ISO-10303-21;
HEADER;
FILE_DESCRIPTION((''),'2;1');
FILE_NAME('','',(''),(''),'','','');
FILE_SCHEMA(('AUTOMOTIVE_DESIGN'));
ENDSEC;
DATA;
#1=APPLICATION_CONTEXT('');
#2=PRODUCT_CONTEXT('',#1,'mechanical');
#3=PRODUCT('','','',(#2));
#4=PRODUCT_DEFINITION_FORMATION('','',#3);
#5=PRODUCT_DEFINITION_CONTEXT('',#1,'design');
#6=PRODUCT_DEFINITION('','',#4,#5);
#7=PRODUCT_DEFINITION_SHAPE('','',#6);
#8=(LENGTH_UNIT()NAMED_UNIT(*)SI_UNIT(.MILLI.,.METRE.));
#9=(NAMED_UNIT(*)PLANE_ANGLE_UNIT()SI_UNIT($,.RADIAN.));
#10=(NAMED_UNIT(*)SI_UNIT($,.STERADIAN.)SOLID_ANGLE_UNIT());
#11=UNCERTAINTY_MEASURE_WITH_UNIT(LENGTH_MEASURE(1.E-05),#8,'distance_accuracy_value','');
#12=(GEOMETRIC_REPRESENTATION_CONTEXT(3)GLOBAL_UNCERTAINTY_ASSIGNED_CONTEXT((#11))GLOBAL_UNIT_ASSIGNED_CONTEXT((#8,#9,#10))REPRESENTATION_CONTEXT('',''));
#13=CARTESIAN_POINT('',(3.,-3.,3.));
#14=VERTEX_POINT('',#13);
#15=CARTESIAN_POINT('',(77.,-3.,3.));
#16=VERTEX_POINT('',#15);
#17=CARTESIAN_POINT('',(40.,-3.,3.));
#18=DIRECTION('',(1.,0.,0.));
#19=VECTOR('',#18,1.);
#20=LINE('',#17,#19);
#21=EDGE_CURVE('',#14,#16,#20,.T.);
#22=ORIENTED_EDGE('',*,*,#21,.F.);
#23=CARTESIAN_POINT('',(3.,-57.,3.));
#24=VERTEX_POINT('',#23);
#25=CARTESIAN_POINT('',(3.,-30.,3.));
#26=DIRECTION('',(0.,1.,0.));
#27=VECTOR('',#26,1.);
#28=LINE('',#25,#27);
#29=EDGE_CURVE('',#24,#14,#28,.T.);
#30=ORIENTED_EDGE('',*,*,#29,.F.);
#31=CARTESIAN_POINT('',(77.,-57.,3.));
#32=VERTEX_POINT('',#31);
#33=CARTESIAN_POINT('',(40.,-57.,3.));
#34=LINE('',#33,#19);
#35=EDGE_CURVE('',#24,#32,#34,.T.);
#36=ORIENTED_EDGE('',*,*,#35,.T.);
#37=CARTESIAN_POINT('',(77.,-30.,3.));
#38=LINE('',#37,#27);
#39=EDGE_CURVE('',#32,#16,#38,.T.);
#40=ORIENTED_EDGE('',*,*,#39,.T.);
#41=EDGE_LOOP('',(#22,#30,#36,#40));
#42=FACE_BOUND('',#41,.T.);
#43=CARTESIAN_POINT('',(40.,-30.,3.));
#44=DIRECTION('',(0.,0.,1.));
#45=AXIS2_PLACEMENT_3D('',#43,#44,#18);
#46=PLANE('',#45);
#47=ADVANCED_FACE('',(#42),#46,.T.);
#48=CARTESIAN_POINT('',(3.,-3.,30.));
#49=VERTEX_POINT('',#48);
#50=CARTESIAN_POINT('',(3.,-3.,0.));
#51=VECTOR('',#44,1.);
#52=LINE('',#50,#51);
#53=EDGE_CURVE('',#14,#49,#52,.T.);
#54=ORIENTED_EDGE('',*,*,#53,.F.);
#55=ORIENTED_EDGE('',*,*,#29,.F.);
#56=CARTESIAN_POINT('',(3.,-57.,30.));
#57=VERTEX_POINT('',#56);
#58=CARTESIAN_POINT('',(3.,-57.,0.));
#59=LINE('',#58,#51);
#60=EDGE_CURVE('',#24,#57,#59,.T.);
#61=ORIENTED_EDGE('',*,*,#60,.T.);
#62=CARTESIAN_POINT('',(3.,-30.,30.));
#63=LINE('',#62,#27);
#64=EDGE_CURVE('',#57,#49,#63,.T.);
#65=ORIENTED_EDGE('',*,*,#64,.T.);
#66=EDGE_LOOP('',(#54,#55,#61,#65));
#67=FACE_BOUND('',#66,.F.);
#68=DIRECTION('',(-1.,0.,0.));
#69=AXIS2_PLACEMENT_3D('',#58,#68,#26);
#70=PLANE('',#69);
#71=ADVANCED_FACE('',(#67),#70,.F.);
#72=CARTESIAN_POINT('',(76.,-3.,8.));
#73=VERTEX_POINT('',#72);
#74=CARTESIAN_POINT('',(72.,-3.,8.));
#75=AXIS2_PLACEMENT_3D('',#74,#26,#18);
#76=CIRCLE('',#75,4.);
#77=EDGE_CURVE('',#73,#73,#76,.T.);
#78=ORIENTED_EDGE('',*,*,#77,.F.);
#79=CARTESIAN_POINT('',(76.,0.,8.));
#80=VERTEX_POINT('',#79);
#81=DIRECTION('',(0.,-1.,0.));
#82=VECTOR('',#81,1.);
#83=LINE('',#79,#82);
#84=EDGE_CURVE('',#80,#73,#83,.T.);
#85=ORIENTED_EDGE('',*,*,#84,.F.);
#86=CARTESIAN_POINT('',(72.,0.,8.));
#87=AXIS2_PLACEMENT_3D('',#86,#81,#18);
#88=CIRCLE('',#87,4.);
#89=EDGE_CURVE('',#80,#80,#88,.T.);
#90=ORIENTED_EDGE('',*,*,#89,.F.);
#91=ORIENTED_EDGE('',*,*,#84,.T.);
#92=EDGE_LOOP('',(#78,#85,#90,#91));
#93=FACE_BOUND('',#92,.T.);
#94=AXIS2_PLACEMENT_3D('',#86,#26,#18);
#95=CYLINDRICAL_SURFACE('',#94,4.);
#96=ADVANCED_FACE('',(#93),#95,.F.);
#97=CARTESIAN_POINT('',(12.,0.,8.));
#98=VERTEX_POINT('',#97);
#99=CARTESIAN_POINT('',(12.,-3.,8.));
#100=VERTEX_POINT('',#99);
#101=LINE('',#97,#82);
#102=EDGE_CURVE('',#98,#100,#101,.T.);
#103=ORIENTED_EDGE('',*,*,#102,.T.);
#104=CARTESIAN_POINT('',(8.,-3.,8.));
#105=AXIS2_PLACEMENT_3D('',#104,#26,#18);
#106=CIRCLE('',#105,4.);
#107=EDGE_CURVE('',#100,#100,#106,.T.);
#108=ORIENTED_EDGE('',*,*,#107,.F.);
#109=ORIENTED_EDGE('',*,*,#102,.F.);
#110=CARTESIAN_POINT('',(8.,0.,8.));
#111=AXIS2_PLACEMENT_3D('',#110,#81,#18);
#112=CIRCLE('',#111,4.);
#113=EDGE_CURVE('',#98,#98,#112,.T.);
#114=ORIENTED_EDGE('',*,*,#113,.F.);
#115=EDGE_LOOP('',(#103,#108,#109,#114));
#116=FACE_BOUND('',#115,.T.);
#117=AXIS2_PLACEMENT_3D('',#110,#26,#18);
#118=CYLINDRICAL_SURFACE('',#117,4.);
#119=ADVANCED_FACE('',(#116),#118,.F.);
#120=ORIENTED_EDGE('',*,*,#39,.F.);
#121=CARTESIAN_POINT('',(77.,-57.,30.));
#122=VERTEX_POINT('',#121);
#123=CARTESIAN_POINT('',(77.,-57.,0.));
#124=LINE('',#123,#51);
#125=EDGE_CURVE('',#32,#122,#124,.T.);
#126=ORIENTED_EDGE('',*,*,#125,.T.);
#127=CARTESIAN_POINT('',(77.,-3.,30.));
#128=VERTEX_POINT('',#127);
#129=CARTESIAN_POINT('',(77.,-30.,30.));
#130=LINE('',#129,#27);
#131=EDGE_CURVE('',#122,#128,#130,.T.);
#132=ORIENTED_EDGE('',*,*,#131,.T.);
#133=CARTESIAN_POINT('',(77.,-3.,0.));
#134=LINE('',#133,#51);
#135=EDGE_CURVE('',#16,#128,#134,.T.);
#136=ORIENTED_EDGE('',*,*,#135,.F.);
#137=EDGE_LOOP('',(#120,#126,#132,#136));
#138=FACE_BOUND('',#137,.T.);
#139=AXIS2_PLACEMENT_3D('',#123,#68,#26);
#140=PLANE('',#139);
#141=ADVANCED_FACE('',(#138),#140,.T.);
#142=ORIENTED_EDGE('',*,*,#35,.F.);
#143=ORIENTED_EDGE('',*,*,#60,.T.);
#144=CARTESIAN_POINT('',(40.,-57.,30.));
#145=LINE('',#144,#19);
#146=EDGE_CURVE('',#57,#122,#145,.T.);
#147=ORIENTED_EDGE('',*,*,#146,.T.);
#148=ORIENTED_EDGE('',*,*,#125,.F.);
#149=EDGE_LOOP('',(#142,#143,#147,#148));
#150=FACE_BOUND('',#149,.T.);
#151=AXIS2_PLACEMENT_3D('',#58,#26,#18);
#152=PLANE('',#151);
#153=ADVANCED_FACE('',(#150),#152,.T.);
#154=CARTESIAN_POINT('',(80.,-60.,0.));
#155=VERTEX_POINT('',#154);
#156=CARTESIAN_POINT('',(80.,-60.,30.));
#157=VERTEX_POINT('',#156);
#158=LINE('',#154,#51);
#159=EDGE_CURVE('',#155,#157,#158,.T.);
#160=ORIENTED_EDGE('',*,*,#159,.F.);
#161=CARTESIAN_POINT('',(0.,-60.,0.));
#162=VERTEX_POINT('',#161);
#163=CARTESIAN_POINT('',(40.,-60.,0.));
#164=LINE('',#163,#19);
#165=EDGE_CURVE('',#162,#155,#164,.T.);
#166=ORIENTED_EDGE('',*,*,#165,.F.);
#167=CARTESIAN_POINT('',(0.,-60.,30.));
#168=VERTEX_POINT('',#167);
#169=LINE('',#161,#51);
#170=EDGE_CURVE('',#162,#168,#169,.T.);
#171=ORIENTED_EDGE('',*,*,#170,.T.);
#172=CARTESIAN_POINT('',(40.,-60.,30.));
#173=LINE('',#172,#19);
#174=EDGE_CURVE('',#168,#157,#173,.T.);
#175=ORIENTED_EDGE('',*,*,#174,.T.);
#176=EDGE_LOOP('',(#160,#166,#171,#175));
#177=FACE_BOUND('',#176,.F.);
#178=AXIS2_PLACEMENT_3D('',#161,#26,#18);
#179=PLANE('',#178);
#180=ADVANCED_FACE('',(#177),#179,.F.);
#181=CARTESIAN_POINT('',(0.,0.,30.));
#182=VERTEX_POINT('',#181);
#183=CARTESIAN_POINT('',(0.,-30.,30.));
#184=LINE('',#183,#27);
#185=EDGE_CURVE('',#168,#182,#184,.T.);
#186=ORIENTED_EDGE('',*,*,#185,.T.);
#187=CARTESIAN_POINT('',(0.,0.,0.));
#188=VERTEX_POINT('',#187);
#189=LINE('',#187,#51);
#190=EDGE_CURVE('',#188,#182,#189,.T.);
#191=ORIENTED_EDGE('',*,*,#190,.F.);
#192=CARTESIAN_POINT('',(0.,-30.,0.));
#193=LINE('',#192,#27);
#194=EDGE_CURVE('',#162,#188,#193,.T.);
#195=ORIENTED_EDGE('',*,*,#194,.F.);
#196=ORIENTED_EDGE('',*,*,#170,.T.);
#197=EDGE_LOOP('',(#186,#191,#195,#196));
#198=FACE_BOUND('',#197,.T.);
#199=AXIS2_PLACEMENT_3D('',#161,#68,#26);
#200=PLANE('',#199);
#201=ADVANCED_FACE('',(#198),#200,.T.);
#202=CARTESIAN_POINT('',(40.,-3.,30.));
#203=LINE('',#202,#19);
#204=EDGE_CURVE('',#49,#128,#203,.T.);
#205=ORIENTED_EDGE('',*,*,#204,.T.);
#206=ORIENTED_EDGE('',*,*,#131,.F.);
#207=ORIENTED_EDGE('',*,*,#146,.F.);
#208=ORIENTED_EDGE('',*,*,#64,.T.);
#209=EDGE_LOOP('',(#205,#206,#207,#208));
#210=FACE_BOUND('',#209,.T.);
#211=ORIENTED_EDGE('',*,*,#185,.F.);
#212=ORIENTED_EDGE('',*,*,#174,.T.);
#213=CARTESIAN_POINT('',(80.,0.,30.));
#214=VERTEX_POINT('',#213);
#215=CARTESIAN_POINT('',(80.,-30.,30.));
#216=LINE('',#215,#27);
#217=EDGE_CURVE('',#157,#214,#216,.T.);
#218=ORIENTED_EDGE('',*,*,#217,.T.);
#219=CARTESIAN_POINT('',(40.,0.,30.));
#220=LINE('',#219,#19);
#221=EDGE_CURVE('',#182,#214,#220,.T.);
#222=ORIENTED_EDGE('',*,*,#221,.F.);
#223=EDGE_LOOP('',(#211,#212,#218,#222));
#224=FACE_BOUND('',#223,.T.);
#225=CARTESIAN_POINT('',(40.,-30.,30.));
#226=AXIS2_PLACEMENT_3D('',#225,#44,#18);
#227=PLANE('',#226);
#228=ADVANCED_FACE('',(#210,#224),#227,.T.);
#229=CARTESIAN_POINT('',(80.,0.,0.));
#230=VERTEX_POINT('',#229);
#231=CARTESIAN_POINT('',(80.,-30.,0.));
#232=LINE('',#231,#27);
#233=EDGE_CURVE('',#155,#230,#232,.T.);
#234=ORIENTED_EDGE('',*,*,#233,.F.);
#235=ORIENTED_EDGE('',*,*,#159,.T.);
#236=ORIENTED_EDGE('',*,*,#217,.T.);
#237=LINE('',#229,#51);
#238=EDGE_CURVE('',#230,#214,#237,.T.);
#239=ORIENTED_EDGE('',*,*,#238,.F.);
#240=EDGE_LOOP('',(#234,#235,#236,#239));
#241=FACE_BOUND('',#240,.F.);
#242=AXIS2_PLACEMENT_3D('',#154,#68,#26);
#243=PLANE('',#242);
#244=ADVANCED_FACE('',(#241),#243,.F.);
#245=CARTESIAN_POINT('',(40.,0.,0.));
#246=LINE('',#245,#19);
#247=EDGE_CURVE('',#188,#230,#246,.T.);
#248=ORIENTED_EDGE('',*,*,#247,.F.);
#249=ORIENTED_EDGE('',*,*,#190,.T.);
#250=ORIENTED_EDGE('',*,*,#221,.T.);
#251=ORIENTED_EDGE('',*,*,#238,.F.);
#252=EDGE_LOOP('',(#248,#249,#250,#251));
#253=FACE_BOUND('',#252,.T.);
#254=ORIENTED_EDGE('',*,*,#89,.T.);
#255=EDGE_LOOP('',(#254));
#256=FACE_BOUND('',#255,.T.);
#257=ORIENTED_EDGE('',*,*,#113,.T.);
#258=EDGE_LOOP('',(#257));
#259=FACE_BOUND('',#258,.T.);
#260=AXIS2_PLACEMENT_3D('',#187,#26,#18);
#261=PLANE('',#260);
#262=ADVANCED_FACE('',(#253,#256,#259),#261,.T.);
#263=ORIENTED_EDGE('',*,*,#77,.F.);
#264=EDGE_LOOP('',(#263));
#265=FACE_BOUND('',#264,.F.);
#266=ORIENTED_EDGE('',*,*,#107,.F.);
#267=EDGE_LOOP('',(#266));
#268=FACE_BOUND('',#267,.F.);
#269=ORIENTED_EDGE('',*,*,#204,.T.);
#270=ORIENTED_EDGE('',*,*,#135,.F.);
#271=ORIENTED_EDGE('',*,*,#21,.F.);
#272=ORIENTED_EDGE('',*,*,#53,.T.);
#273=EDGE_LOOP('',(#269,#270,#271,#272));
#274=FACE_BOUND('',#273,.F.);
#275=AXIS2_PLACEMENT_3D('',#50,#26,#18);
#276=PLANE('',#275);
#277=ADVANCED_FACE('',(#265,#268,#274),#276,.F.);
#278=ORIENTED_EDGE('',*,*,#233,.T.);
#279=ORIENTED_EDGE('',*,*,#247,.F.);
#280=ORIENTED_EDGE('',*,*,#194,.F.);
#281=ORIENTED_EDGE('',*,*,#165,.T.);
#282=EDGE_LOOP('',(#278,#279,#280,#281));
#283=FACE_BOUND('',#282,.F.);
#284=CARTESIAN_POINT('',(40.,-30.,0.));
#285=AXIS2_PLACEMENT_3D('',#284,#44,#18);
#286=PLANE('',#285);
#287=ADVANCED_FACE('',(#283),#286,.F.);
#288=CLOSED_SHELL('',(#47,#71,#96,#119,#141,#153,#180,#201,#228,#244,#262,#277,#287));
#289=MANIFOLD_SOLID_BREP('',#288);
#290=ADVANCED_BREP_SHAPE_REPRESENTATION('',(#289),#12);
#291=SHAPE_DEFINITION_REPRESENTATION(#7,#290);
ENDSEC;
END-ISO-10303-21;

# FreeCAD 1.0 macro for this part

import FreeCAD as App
import Part
import Sketcher
Q = App.Units.Quantity


def add_polygon(sketch, points):
    """Adds a closed chain of lines whose ends are joined by coincident constraints."""
    first, n = sketch.GeometryCount, len(points)
    for a, b in zip(points, points[1:] + points[:1]):
        sketch.addGeometry(Part.LineSegment(App.Vector(*a, 0), App.Vector(*b, 0)), False)
    for i in range(n):
        sketch.addConstraint(Sketcher.Constraint("Coincident", first + i, 2, first + (i + 1) % n, 1))

doc = App.newDocument("Part")
body = doc.addObject("PartDesign::Body", "Body")

sketch1 = doc.addObject("Sketcher::SketchObject", "Sketch")
body.addObject(sketch1)
sketch1.AttachmentSupport = (doc.XY_Plane, [""])
sketch1.MapMode = "FlatFace"
add_polygon(sketch1, [(3, -3), (3, -57), (77, -57), (77, -3)])
sketch1.addConstraint(Sketcher.Constraint("Vertical", 0))
sketch1.addConstraint(Sketcher.Constraint("Horizontal", 1))
sketch1.addConstraint(Sketcher.Constraint("Vertical", 2))
sketch1.addConstraint(Sketcher.Constraint("Horizontal", 3))
sketch1.addConstraint(Sketcher.Constraint("DistanceX", 1, 1, 1, 2, Q("74 mm")))
sketch1.addConstraint(Sketcher.Constraint("DistanceY", 0, 2, 0, 1, Q("54 mm")))
sketch1.addConstraint(Sketcher.Constraint("DistanceX", -1, 1, 0, 2, Q("3 mm")))
sketch1.addConstraint(Sketcher.Constraint("DistanceY", 0, 2, -1, 1, Q("57 mm")))
pad1 = doc.addObject("PartDesign::Pad", "Pad")
body.addObject(pad1)
pad1.Profile = sketch1
pad1.Length = 3

sketch2 = doc.addObject("Sketcher::SketchObject", "Sketch001")
body.addObject(sketch2)
sketch2.AttachmentSupport = (doc.XY_Plane, [""])
sketch2.MapMode = "FlatFace"
add_polygon(sketch2, [(0, 0), (0, -60), (80, -60), (80, 0)])
add_polygon(sketch2, [(77, -57), (3, -57), (3, -3), (77, -3)])
sketch2.addConstraint(Sketcher.Constraint("Vertical", 0))
sketch2.addConstraint(Sketcher.Constraint("Horizontal", 1))
sketch2.addConstraint(Sketcher.Constraint("Vertical", 2))
sketch2.addConstraint(Sketcher.Constraint("Horizontal", 3))
sketch2.addConstraint(Sketcher.Constraint("Horizontal", 4))
sketch2.addConstraint(Sketcher.Constraint("Vertical", 5))
sketch2.addConstraint(Sketcher.Constraint("Horizontal", 6))
sketch2.addConstraint(Sketcher.Constraint("Vertical", 7))
sketch2.addConstraint(Sketcher.Constraint("Coincident", 3, 2, -1, 1))
sketch2.addConstraint(Sketcher.Constraint("DistanceX", 1, 1, 1, 2, Q("80 mm")))
sketch2.addConstraint(Sketcher.Constraint("DistanceX", 4, 2, 4, 1, Q("74 mm")))
sketch2.addConstraint(Sketcher.Constraint("DistanceY", 0, 2, 0, 1, Q("60 mm")))
sketch2.addConstraint(Sketcher.Constraint("DistanceY", 5, 1, 5, 2, Q("54 mm")))
sketch2.addConstraint(Sketcher.Constraint("DistanceX", -1, 1, 4, 2, Q("3 mm")))
sketch2.addConstraint(Sketcher.Constraint("DistanceY", 4, 2, -1, 1, Q("57 mm")))
pad2 = doc.addObject("PartDesign::Pad", "Pad001")
body.addObject(pad2)
pad2.Profile = sketch2
pad2.Length = 30

sketch3 = doc.addObject("Sketcher::SketchObject", "Sketch002")
body.addObject(sketch3)
sketch3.AttachmentSupport = (doc.XZ_Plane, [""])
sketch3.MapMode = "FlatFace"
sketch3.addGeometry(Part.Circle(App.Vector(72, 8, 0), App.Vector(0, 0, 1), 4), False)
sketch3.addGeometry(Part.Circle(App.Vector(8, 8, 0), App.Vector(0, 0, 1), 4), False)
sketch3.addConstraint(Sketcher.Constraint("Equal", 0, 1))
sketch3.addConstraint(Sketcher.Constraint("Horizontal", 0, 3, 1, 3))
sketch3.addConstraint(Sketcher.Constraint("Diameter", 0, Q("8 mm")))
sketch3.addConstraint(Sketcher.Constraint("DistanceX", -1, 1, 0, 3, Q("72 mm")))
sketch3.addConstraint(Sketcher.Constraint("DistanceY", -1, 1, 0, 3, Q("8 mm")))
sketch3.addConstraint(Sketcher.Constraint("DistanceX", -1, 1, 1, 3, Q("8 mm")))
pocket1 = doc.addObject("PartDesign::Pocket", "Pocket")
body.addObject(pocket1)
pocket1.Profile = sketch3
pocket1.Length = 5
pocket1.Reversed = True

doc.recompute()
